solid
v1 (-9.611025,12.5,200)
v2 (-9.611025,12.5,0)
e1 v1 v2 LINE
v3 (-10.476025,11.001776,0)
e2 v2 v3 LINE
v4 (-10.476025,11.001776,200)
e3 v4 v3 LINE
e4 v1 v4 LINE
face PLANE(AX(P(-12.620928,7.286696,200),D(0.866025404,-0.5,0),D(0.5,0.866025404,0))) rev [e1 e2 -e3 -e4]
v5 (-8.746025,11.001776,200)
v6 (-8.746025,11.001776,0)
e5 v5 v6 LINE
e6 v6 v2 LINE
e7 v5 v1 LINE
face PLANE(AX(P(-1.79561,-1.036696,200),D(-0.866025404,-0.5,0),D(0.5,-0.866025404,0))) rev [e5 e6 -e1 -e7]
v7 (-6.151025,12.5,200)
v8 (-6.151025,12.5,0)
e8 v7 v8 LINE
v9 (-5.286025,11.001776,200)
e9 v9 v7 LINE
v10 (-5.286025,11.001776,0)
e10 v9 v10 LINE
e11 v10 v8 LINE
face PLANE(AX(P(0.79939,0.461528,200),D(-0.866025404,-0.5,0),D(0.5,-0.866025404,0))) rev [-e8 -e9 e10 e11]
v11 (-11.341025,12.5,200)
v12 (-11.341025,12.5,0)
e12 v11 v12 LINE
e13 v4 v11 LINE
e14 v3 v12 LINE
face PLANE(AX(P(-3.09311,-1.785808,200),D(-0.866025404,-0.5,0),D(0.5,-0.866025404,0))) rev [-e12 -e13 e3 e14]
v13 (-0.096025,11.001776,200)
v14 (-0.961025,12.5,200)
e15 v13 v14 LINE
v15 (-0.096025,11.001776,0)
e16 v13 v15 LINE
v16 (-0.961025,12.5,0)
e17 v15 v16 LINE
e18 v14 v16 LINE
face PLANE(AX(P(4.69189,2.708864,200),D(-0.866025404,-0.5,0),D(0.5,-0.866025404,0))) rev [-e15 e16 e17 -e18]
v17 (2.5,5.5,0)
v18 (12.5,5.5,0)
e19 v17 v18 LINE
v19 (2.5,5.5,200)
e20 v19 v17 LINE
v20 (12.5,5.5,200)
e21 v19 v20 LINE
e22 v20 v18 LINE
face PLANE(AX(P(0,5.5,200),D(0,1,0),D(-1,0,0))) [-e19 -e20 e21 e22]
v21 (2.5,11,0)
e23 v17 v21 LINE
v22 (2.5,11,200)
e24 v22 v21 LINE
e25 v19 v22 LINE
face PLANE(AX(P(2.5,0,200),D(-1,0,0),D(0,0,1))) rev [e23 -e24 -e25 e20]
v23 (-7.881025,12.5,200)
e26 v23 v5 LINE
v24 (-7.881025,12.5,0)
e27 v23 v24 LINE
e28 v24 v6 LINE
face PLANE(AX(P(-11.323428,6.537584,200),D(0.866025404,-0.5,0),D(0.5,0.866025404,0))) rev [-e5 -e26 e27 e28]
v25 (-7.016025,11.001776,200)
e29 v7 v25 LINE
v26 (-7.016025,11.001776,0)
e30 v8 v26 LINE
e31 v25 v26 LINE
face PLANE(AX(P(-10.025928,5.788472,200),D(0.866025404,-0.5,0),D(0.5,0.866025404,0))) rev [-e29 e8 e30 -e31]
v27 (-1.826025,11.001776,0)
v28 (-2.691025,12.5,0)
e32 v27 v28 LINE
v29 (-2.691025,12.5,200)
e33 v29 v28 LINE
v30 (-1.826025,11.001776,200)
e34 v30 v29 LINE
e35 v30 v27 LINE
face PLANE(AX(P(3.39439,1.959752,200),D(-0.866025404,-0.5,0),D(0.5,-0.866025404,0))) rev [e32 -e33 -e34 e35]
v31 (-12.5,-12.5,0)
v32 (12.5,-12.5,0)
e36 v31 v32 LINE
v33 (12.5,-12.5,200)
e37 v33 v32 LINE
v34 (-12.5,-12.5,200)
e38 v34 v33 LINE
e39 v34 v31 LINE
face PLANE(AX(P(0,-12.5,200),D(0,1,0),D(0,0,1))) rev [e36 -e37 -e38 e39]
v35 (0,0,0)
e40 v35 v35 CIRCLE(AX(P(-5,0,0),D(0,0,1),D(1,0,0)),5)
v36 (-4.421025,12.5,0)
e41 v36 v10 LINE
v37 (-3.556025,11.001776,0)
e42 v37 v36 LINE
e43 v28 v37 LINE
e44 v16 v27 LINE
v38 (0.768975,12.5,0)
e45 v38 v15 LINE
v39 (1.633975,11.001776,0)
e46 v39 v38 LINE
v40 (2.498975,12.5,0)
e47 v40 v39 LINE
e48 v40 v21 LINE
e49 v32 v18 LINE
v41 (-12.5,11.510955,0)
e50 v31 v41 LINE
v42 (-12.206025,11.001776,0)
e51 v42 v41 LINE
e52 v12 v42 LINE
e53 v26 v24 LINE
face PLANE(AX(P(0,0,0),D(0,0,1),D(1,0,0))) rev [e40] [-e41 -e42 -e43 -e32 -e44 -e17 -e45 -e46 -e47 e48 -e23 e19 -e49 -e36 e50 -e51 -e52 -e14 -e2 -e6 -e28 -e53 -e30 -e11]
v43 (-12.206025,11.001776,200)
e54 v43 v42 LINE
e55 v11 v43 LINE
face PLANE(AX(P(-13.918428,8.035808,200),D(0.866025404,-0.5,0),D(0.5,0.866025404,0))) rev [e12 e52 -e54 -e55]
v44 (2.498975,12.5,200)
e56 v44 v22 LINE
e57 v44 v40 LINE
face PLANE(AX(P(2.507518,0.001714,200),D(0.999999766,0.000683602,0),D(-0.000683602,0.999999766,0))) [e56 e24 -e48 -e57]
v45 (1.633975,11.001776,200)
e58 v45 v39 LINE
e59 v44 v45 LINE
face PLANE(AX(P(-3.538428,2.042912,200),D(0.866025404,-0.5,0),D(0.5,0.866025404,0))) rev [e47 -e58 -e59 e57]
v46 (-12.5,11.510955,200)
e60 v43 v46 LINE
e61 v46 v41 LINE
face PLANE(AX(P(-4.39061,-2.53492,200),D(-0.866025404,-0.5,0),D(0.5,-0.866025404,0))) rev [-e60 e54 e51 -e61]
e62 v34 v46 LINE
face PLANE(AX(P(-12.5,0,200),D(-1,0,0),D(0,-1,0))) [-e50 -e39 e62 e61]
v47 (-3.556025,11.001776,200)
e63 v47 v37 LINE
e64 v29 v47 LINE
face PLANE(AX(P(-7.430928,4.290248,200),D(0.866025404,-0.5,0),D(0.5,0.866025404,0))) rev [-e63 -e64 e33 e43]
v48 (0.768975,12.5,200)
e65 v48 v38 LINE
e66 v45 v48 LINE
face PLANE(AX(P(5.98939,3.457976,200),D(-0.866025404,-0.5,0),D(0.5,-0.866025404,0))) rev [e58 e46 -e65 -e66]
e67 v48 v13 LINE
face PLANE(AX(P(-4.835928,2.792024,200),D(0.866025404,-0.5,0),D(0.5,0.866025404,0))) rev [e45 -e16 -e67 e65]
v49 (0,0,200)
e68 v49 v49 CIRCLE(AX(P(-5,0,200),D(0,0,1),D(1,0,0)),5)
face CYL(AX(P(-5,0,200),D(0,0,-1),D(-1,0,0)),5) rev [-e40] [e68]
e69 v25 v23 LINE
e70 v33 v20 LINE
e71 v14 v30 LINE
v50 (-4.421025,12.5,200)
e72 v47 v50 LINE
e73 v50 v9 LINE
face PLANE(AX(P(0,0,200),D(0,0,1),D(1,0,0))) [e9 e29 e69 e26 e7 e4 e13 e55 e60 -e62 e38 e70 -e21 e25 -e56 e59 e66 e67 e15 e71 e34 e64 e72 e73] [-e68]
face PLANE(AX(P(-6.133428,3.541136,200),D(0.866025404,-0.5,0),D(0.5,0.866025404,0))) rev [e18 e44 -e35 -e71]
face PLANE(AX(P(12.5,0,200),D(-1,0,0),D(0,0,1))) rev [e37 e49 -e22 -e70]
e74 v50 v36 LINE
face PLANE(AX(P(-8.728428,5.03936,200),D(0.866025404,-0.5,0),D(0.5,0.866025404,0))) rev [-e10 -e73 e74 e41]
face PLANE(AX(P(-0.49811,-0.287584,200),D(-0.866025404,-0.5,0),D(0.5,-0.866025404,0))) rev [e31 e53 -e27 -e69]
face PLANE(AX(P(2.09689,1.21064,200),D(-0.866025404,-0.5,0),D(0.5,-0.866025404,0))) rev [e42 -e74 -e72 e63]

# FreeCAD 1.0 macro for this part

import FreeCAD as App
import Part
import Sketcher

V = App.Vector
Q = App.Units.Quantity


def add_polygon(sketch, points):
    """Adds a closed chain of lines whose ends are joined by coincident constraints."""
    first, n = sketch.GeometryCount, len(points)
    for a, b in zip(points, points[1:] + points[:1]):
        sketch.addGeometry(Part.LineSegment(App.Vector(*a, 0), App.Vector(*b, 0)), False)
    for i in range(n):
        sketch.addConstraint(Sketcher.Constraint("Coincident", first + i, 2, first + (i + 1) % n, 1))

doc = App.newDocument("Part")
body = doc.addObject("PartDesign::Body", "Body")

# Sketch on XY plane
sketch1 = doc.addObject("Sketcher::SketchObject", "Sketch")
body.addObject(sketch1)
sketch1.AttachmentSupport = (doc.XY_Plane, [""])
sketch1.MapMode = "FlatFace"
add_polygon(sketch1, [(-12.5, 11.51), (-12.5, -12.5), (12.5, -12.5), (12.5, 5.5), (2.5, 5.5), (2.5, 11), (2.5, 12.5), (1.63, 11), (0.77, 12.5), (-0.1, 11), (-0.96, 12.5), (-1.83, 11), (-2.69, 12.5), (-3.56, 11), (-4.42, 12.5), (-5.29, 11), (-6.15, 12.5), (-7.02, 11), (-7.88, 12.5), (-8.75, 11), (-9.61, 12.5), (-10.48, 11), (-11.34, 12.5), (-11.56, 12.13), (-11.85, 11.62), (-12.21, 11)])  # lines 0-25
sketch1.addGeometry(Part.Circle(V(-5, 0, 0), V(0, 0, 1), 5), False)  # 26
sketch1.addConstraint(Sketcher.Constraint("Vertical", 0))
sketch1.addConstraint(Sketcher.Constraint("Horizontal", 1))
sketch1.addConstraint(Sketcher.Constraint("Vertical", 2))
sketch1.addConstraint(Sketcher.Constraint("Horizontal", 3))
sketch1.addConstraint(Sketcher.Constraint("Vertical", 4))
sketch1.addConstraint(Sketcher.Constraint("PointOnObject", 26, 3, -1))
sketch1.addConstraint(Sketcher.Constraint("Parallel", 6, 8))
sketch1.addConstraint(Sketcher.Constraint("Parallel", 7, 9))
sketch1.addConstraint(Sketcher.Constraint("Parallel", 8, 10))
sketch1.addConstraint(Sketcher.Constraint("Parallel", 9, 11))
sketch1.addConstraint(Sketcher.Constraint("Parallel", 10, 12))
sketch1.addConstraint(Sketcher.Constraint("Parallel", 11, 13))
sketch1.addConstraint(Sketcher.Constraint("Parallel", 12, 14))
sketch1.addConstraint(Sketcher.Constraint("Parallel", 13, 15))
sketch1.addConstraint(Sketcher.Constraint("Parallel", 14, 16))
sketch1.addConstraint(Sketcher.Constraint("Parallel", 15, 17))
sketch1.addConstraint(Sketcher.Constraint("Parallel", 16, 18))
sketch1.addConstraint(Sketcher.Constraint("Parallel", 17, 19))
sketch1.addConstraint(Sketcher.Constraint("Parallel", 18, 20))
sketch1.addConstraint(Sketcher.Constraint("Parallel", 19, 21))
sketch1.addConstraint(Sketcher.Constraint("Parallel", 20, 22))
sketch1.addConstraint(Sketcher.Constraint("Parallel", 22, 23))
sketch1.addConstraint(Sketcher.Constraint("Parallel", 23, 24))
sketch1.addConstraint(Sketcher.Constraint("Parallel", 21, 25))
sketch1.addConstraint(Sketcher.Constraint("Horizontal", 5, 2, 7, 2))
sketch1.addConstraint(Sketcher.Constraint("Horizontal", 6, 2, 8, 2))
sketch1.addConstraint(Sketcher.Constraint("Horizontal", 7, 2, 9, 2))
sketch1.addConstraint(Sketcher.Constraint("Horizontal", 8, 2, 10, 2))
sketch1.addConstraint(Sketcher.Constraint("Horizontal", 9, 2, 11, 2))
sketch1.addConstraint(Sketcher.Constraint("Horizontal", 10, 2, 12, 2))
sketch1.addConstraint(Sketcher.Constraint("Horizontal", 11, 2, 13, 2))
sketch1.addConstraint(Sketcher.Constraint("Horizontal", 12, 2, 14, 2))
sketch1.addConstraint(Sketcher.Constraint("Horizontal", 13, 2, 15, 2))
sketch1.addConstraint(Sketcher.Constraint("Horizontal", 14, 2, 16, 2))
sketch1.addConstraint(Sketcher.Constraint("Horizontal", 15, 2, 17, 2))
sketch1.addConstraint(Sketcher.Constraint("Horizontal", 16, 2, 18, 2))
sketch1.addConstraint(Sketcher.Constraint("Horizontal", 17, 2, 19, 2))
sketch1.addConstraint(Sketcher.Constraint("Horizontal", 18, 2, 20, 2))
sketch1.addConstraint(Sketcher.Constraint("Horizontal", 19, 2, 21, 2))
sketch1.addConstraint(Sketcher.Constraint("Horizontal", 20, 2, 24, 2))
sketch1.addConstraint(Sketcher.Constraint("Equal", 6, 7))
sketch1.addConstraint(Sketcher.Constraint("Equal", 23, 25))
sketch1.addConstraint(Sketcher.Constraint("Diameter", 26, 10.0))
sketch1.addConstraint(Sketcher.Constraint("DistanceX", 1, 1, 1, 2, 25.0))
sketch1.addConstraint(Sketcher.Constraint("DistanceX", 3, 2, 3, 1, 10.0))
sketch1.addConstraint(Sketcher.Constraint("DistanceY", 2, 1, 2, 2, 18.0))
sketch1.addConstraint(Sketcher.Constraint("Angle", 6, Q("-120 deg")))
sketch1.addConstraint(Sketcher.Constraint("DistanceY", 4, 1, 4, 2, 5.5))
sketch1.addConstraint(Sketcher.Constraint("DistanceX", 26, 3, -1, 1, 5.0))
sketch1.addConstraint(Sketcher.Constraint("DistanceY", -1, 1, 4, 2, 11.0))
sketch1.addConstraint(Sketcher.Constraint("DistanceY", 3, 2, 5, 2, 7.0))
sketch1.addConstraint(Sketcher.Constraint("DistanceX", 0, 2, -1, 1, 12.5))
sketch1.addConstraint(Sketcher.Constraint("Distance", 6, 1.73))
sketch1.addConstraint(Sketcher.Constraint("Distance", 22, 0.4325))
sketch1.addConstraint(Sketcher.Constraint("Distance", 23, 0.587949))
pad1 = doc.addObject("PartDesign::Pad", "Pad")
body.addObject(pad1)
pad1.Profile = sketch1
pad1.Length = 200

doc.recompute()
